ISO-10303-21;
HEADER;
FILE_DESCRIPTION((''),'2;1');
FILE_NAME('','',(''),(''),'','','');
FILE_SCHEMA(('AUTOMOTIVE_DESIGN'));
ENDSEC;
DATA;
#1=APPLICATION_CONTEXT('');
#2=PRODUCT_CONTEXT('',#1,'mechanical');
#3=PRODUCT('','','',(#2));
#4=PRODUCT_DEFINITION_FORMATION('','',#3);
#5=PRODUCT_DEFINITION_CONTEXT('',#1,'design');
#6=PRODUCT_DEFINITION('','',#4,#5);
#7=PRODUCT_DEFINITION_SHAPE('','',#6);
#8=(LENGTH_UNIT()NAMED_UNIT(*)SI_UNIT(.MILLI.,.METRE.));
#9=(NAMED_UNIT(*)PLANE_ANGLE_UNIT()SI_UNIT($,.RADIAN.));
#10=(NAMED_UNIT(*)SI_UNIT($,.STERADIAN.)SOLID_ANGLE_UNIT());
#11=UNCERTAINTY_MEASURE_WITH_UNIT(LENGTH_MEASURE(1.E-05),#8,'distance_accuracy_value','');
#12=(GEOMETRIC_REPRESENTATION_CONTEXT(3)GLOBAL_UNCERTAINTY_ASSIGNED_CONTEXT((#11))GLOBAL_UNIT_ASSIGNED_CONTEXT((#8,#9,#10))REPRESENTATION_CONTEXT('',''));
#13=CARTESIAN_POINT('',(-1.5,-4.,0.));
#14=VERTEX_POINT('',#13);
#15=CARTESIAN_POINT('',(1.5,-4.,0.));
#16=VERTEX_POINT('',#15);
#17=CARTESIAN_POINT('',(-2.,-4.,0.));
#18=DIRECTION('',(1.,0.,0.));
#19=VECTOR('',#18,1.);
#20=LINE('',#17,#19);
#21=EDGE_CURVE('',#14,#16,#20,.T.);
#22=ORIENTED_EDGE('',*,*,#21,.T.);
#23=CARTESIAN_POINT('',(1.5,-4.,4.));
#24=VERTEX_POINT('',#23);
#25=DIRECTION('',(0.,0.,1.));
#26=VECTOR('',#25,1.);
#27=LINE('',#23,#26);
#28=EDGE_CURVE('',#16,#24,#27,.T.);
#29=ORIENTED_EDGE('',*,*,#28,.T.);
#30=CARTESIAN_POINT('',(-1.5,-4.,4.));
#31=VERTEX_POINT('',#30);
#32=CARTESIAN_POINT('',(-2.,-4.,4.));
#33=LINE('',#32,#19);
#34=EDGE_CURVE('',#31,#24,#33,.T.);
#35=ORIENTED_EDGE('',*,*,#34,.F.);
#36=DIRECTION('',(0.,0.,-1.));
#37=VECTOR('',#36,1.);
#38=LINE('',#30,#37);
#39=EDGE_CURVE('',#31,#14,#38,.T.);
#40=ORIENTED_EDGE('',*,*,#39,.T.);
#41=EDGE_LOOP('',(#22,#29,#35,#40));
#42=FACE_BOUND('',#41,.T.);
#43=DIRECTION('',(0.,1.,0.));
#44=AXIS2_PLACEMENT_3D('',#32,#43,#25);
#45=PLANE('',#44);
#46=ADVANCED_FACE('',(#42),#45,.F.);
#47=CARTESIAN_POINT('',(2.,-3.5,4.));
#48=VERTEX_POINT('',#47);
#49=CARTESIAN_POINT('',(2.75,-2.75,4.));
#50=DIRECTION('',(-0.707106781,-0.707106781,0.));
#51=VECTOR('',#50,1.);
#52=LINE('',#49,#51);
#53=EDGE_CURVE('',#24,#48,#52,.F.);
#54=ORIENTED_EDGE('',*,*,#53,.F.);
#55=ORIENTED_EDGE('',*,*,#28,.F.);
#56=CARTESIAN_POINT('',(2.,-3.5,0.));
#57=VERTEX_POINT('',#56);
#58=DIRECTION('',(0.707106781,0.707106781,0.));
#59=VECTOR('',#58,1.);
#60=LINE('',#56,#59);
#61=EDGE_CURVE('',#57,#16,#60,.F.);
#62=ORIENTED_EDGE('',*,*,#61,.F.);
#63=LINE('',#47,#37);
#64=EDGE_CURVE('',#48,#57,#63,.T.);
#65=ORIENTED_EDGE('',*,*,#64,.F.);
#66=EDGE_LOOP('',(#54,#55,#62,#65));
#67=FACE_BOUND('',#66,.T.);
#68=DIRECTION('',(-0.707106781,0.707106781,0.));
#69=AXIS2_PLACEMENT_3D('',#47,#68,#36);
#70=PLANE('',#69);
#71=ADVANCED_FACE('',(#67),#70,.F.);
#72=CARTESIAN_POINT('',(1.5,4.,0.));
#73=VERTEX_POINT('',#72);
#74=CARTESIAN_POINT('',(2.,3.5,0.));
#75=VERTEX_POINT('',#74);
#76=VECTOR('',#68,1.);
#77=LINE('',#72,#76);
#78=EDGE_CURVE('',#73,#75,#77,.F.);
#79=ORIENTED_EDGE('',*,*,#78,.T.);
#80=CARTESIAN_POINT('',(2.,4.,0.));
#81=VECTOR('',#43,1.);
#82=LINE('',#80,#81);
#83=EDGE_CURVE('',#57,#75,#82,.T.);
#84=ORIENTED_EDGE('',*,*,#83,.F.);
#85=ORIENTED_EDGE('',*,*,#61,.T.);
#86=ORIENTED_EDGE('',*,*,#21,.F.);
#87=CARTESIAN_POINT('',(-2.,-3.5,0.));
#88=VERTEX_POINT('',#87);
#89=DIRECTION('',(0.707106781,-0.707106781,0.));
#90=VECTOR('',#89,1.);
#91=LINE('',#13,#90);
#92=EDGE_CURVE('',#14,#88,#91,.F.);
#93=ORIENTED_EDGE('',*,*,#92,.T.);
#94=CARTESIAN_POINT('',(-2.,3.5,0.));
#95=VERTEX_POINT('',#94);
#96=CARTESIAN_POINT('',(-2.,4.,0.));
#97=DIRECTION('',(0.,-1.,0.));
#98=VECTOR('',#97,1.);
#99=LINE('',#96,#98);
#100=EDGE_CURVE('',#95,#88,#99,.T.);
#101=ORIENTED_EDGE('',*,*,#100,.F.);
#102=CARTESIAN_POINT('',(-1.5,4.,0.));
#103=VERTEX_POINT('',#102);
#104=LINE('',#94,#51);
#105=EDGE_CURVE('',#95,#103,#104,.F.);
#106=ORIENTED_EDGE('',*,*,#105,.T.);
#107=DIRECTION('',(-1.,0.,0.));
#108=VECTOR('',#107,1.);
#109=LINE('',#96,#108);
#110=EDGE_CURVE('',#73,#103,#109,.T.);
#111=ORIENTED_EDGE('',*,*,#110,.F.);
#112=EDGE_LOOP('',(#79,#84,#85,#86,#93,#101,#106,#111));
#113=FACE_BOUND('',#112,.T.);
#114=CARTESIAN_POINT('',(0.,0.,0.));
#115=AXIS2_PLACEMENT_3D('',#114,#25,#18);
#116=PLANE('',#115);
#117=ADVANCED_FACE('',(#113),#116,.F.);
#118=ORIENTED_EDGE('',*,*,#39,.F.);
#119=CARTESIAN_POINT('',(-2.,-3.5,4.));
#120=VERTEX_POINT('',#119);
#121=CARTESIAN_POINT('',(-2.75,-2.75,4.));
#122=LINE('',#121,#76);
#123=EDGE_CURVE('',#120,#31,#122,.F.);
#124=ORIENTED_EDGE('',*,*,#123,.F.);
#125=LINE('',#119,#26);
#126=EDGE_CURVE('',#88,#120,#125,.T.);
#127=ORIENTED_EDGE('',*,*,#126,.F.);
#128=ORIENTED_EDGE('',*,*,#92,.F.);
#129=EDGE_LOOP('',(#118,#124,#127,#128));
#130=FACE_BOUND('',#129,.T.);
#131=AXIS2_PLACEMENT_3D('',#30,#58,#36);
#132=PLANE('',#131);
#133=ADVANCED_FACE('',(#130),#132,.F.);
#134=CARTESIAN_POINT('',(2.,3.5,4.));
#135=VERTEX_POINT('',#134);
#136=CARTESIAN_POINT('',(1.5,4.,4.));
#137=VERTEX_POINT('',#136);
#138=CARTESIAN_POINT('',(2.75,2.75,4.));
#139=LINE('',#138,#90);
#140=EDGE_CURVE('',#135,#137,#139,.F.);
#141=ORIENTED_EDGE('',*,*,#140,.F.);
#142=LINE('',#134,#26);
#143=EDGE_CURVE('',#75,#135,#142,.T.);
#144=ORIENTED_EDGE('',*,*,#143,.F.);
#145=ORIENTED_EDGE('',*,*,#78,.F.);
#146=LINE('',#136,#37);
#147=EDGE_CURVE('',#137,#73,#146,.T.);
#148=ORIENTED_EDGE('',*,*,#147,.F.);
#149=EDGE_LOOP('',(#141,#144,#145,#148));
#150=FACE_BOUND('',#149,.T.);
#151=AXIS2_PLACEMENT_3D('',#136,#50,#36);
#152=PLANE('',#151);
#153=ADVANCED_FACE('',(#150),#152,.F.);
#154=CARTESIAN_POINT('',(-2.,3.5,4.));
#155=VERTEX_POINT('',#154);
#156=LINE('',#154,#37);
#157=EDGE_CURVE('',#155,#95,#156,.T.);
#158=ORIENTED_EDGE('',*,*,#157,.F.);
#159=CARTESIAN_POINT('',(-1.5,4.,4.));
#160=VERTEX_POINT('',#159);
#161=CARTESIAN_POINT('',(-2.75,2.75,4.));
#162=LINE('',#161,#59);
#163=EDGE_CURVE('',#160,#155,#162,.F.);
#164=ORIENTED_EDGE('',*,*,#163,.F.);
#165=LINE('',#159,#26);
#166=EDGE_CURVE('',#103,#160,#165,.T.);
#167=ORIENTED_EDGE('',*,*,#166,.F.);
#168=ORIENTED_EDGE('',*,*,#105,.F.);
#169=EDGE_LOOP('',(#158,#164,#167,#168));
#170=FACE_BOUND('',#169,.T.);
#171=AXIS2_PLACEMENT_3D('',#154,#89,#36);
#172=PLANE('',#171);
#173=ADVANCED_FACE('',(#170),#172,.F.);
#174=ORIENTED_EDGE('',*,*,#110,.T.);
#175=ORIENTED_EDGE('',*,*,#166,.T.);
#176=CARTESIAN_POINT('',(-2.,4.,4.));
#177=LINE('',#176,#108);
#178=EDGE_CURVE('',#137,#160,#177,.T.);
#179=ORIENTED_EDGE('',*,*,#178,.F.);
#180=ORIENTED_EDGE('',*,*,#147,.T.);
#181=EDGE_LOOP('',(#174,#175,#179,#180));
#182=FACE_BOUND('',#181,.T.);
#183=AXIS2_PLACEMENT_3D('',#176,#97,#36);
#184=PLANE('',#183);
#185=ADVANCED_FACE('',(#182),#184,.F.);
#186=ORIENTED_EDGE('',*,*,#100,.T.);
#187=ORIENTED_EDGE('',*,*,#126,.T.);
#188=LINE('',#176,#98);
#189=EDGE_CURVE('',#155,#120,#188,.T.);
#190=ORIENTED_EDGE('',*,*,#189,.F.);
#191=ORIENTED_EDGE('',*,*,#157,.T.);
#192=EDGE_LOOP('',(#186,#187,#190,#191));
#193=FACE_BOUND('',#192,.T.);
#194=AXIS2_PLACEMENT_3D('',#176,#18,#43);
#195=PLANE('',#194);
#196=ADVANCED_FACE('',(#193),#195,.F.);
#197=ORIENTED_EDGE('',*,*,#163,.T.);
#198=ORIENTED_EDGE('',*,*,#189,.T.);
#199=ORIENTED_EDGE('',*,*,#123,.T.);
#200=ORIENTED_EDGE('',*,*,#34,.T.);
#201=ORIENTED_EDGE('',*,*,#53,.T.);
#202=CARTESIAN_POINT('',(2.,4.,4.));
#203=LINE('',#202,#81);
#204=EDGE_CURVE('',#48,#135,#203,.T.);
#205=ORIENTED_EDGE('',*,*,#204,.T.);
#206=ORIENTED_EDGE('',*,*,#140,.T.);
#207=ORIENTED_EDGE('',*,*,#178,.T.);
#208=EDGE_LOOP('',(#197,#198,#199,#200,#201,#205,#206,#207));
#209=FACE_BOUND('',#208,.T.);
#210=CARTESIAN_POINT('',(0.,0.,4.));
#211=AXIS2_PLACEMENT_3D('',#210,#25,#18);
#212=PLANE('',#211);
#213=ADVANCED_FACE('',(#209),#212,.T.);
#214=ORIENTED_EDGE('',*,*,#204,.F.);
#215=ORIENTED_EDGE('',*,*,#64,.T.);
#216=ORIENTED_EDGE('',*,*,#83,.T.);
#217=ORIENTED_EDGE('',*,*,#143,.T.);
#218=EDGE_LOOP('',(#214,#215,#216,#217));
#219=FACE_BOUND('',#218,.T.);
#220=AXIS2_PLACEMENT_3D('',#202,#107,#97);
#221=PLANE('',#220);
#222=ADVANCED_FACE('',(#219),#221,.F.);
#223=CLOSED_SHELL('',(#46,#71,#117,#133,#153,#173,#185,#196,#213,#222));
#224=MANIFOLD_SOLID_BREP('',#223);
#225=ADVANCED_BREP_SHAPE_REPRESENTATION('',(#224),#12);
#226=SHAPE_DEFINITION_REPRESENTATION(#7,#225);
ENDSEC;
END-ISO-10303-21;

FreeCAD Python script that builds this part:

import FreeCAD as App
import Part
import Sketcher
from FreeCAD import Vector


def edges_at(feature, points):
    """Names of the edges that pass closest to the given points."""
    edges = feature.Shape.Edges
    near = lambda p: min(range(len(edges)), key=lambda i: edges[i].distToShape(Part.Vertex(*p))[0])
    return sorted({f"Edge{near(p) + 1}" for p in points})

doc = App.newDocument("Part")
params = doc.addObject("Spreadsheet::Sheet", "Params")
for row, (alias, value) in enumerate([
    ("sketch1_width", "4 mm"),
    ("sketch1_height", "8 mm"),
    ("pad1_length", "4 mm"),
    ("chamfer_size", "0.5 mm"),
], start=1):
    params.set(f"A{row}", alias)
    params.set(f"B{row}", "=" + value)
    params.setAlias(f"B{row}", alias)

body = doc.addObject("PartDesign::Body", "Body")

# Sketch on XY plane
sketch1 = body.newObject("Sketcher::SketchObject", "Sketch")
sketch1.AttachmentSupport = (doc.getObject("XY_Plane"), [""])
sketch1.MapMode = "FlatFace"
sketch1.addGeometry([
    Part.LineSegment(Vector(-2, 4, 0), Vector(-2, -4, 0)),
    Part.LineSegment(Vector(-2, -4, 0), Vector(2, -4, 0)),
    Part.LineSegment(Vector(2, -4, 0), Vector(2, 4, 0)),
    Part.LineSegment(Vector(2, 4, 0), Vector(-2, 4, 0)),
], False)
sketch1.addConstraint([
    Sketcher.Constraint("Coincident", 0, 2, 1, 1),
    Sketcher.Constraint("Coincident", 1, 2, 2, 1),
    Sketcher.Constraint("Coincident", 2, 2, 3, 1),
    Sketcher.Constraint("Coincident", 3, 2, 0, 1),
    Sketcher.Constraint("Vertical", 0),
    Sketcher.Constraint("Horizontal", 1),
    Sketcher.Constraint("Vertical", 2),
    Sketcher.Constraint("Horizontal", 3),
    Sketcher.Constraint("Symmetric", 0, 2, 2, 2, -1, 1),
    Sketcher.Constraint("DistanceX", 1, 1, 1, 2, 4.0),
    Sketcher.Constraint("DistanceY", 0, 2, 0, 1, 8.0),
])
sketch1.setExpression("Constraints[9]", "Params.sketch1_width")
sketch1.setExpression("Constraints[10]", "Params.sketch1_height")
pad1 = body.newObject("PartDesign::Pad", "Pad")
pad1.Profile = sketch1
pad1.setExpression("Length", "Params.pad1_length")
doc.recompute()

chamfer = body.newObject("PartDesign::Chamfer", "Chamfer")
chamfer.Base = (pad1, edges_at(pad1, [
    (2, -4, 2),
    (-2, -4, 2),
    (-2, 4, 2),
    (2, 4, 2),
]))
chamfer.setExpression("Size", "Params.chamfer_size")

doc.recompute()
